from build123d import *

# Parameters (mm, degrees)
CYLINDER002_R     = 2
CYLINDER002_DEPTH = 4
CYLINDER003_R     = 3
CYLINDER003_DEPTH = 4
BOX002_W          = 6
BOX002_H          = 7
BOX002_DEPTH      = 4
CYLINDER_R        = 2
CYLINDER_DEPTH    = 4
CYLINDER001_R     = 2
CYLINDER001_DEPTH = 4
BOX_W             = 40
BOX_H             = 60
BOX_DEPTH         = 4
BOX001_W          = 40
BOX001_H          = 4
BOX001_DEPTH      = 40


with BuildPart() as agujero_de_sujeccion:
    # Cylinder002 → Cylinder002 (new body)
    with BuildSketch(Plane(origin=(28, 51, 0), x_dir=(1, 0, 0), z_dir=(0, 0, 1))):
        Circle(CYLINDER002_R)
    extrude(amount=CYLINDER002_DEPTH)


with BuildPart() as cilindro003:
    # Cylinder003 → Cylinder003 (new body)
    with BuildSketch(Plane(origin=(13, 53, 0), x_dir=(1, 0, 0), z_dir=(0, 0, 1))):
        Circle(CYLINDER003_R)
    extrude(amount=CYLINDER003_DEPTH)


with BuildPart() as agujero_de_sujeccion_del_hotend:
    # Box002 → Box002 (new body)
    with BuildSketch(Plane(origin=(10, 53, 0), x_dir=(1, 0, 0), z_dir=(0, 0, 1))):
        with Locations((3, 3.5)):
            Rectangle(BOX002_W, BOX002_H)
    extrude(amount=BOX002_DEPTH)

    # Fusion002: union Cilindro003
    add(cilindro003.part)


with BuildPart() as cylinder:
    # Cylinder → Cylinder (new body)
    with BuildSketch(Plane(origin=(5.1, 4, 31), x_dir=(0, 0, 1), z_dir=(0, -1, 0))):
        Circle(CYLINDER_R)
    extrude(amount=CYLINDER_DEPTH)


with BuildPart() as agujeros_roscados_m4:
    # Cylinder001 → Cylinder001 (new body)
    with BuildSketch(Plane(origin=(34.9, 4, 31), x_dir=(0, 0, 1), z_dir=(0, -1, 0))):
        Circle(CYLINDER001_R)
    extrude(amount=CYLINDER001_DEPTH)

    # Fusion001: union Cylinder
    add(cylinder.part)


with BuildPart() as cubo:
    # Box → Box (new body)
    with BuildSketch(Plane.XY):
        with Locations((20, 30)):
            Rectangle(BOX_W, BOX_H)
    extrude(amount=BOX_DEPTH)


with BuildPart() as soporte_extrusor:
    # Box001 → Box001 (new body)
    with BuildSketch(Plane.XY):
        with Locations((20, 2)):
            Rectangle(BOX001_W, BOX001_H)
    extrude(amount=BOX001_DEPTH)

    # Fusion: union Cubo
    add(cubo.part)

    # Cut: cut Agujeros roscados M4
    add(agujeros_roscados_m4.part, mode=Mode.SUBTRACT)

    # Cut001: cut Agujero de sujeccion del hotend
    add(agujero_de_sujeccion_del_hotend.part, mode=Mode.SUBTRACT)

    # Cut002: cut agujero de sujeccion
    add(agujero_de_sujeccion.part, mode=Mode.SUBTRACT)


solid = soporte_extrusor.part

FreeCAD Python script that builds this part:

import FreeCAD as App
import Part
import Sketcher

V = App.Vector
Q = App.Units.Quantity


def add_polygon(sketch, points):
    """Adds a closed chain of lines whose ends are joined by coincident constraints."""
    first, n = sketch.GeometryCount, len(points)
    for a, b in zip(points, points[1:] + points[:1]):
        sketch.addGeometry(Part.LineSegment(App.Vector(*a, 0), App.Vector(*b, 0)), False)
    for i in range(n):
        sketch.addConstraint(Sketcher.Constraint("Coincident", first + i, 2, first + (i + 1) % n, 1))

doc = App.newDocument("Part")
body = doc.addObject("PartDesign::Body", "Body")

sketch1 = body.newObject("Sketcher::SketchObject", "Sketch")
sketch1.AttachmentSupport = (doc.getObject("XY_Plane"), [""])
sketch1.MapMode = "FlatFace"
sketch1.addGeometry(Part.Circle(V(28, 51, 0), V(0, 0, 1), 2), False)
sketch1.addConstraint(Sketcher.Constraint("Diameter", 0, Q("4 mm")))
sketch1.addConstraint(Sketcher.Constraint("DistanceX", -1, 1, 0, 3, Q("28 mm")))
sketch1.addConstraint(Sketcher.Constraint("DistanceY", -1, 1, 0, 3, Q("51 mm")))
pad1 = body.newObject("PartDesign::Pad", "Pad")
pad1.Profile = sketch1
pad1.Length = 4
body2 = doc.addObject("PartDesign::Body", "Body001")

sketch2 = body2.newObject("Sketcher::SketchObject", "Sketch001")
sketch2.AttachmentSupport = (doc.getObject("XY_Plane001"), [""])
sketch2.MapMode = "FlatFace"
sketch2.addGeometry(Part.Circle(V(13, 53, 0), V(0, 0, 1), 3), False)
sketch2.addConstraint(Sketcher.Constraint("Diameter", 0, Q("6 mm")))
sketch2.addConstraint(Sketcher.Constraint("DistanceX", -1, 1, 0, 3, Q("13 mm")))
sketch2.addConstraint(Sketcher.Constraint("DistanceY", -1, 1, 0, 3, Q("53 mm")))
pad2 = body2.newObject("PartDesign::Pad", "Pad001")
pad2.Profile = sketch2
pad2.Length = 4
body3 = doc.addObject("PartDesign::Body", "Body002")

sketch3 = body3.newObject("Sketcher::SketchObject", "Sketch002")
sketch3.AttachmentSupport = (doc.getObject("XY_Plane002"), [""])
sketch3.MapMode = "FlatFace"
add_polygon(sketch3, [(10, 60), (10, 53), (16, 53), (16, 60)])
sketch3.addConstraint(Sketcher.Constraint("Vertical", 0))
sketch3.addConstraint(Sketcher.Constraint("Horizontal", 1))
sketch3.addConstraint(Sketcher.Constraint("Vertical", 2))
sketch3.addConstraint(Sketcher.Constraint("Horizontal", 3))
sketch3.addConstraint(Sketcher.Constraint("DistanceX", 1, 1, 1, 2, Q("6 mm")))
sketch3.addConstraint(Sketcher.Constraint("DistanceY", 0, 2, 0, 1, Q("7 mm")))
sketch3.addConstraint(Sketcher.Constraint("DistanceX", -1, 1, 0, 2, Q("10 mm")))
sketch3.addConstraint(Sketcher.Constraint("DistanceY", -1, 1, 0, 2, Q("53 mm")))
pad3 = body3.newObject("PartDesign::Pad", "Pad002")
pad3.Profile = sketch3
pad3.Length = 4
doc.recompute()

boolean = body3.newObject("PartDesign::Boolean", "Boolean")
boolean.Type = "Fuse"
boolean.addObjects([body2])
body4 = doc.addObject("PartDesign::Body", "Body003")

sketch4 = body4.newObject("Sketcher::SketchObject", "Sketch003")
sketch4.AttachmentSupport = (doc.getObject("XZ_Plane003"), [""])
sketch4.MapMode = "FlatFace"
sketch4.AttachmentOffset = App.Placement(V(0, 0, -4), App.Rotation())
sketch4.addGeometry(Part.Circle(V(5.1, 31, 0), V(0, 0, 1), 2), False)
sketch4.addConstraint(Sketcher.Constraint("Diameter", 0, Q("4 mm")))
sketch4.addConstraint(Sketcher.Constraint("DistanceY", -1, 1, 0, 3, Q("31 mm")))
sketch4.addConstraint(Sketcher.Constraint("DistanceX", -1, 1, 0, 3, Q("5.1 mm")))
pad4 = body4.newObject("PartDesign::Pad", "Pad003")
pad4.Profile = sketch4
pad4.Length = 4
body5 = doc.addObject("PartDesign::Body", "Body004")
body5.AllowCompound = True

sketch5 = body5.newObject("Sketcher::SketchObject", "Sketch004")
sketch5.AttachmentSupport = (doc.getObject("XZ_Plane004"), [""])
sketch5.MapMode = "FlatFace"
sketch5.AttachmentOffset = App.Placement(V(0, 0, -4), App.Rotation())
sketch5.addGeometry(Part.Circle(V(34.9, 31, 0), V(0, 0, 1), 2), False)
sketch5.addConstraint(Sketcher.Constraint("Diameter", 0, Q("4 mm")))
sketch5.addConstraint(Sketcher.Constraint("DistanceY", -1, 1, 0, 3, Q("31 mm")))
sketch5.addConstraint(Sketcher.Constraint("DistanceX", -1, 1, 0, 3, Q("34.9 mm")))
pad5 = body5.newObject("PartDesign::Pad", "Pad004")
pad5.Profile = sketch5
pad5.Length = 4
doc.recompute()

boolean2 = body5.newObject("PartDesign::Boolean", "Boolean001")
boolean2.Type = "Fuse"
boolean2.addObjects([body4])
body6 = doc.addObject("PartDesign::Body", "Body005")

sketch6 = body6.newObject("Sketcher::SketchObject", "Sketch005")
sketch6.AttachmentSupport = (doc.getObject("XY_Plane005"), [""])
sketch6.MapMode = "FlatFace"
add_polygon(sketch6, [(0, 60), (0, 0), (40, 0), (40, 60)])
sketch6.addConstraint(Sketcher.Constraint("Vertical", 0))
sketch6.addConstraint(Sketcher.Constraint("Horizontal", 1))
sketch6.addConstraint(Sketcher.Constraint("Vertical", 2))
sketch6.addConstraint(Sketcher.Constraint("Horizontal", 3))
sketch6.addConstraint(Sketcher.Constraint("Coincident", 0, 2, -1, 1))
sketch6.addConstraint(Sketcher.Constraint("DistanceX", 1, 1, 1, 2, Q("40 mm")))
sketch6.addConstraint(Sketcher.Constraint("DistanceY", 0, 2, 0, 1, Q("60 mm")))
pad6 = body6.newObject("PartDesign::Pad", "Pad005")
pad6.Profile = sketch6
pad6.Length = 4
body7 = doc.addObject("PartDesign::Body", "Body006")

sketch7 = body7.newObject("Sketcher::SketchObject", "Sketch006")
sketch7.AttachmentSupport = (doc.getObject("XY_Plane006"), [""])
sketch7.MapMode = "FlatFace"
add_polygon(sketch7, [(0, 4), (0, 0), (40, 0), (40, 4)])
sketch7.addConstraint(Sketcher.Constraint("Vertical", 0))
sketch7.addConstraint(Sketcher.Constraint("Horizontal", 1))
sketch7.addConstraint(Sketcher.Constraint("Vertical", 2))
sketch7.addConstraint(Sketcher.Constraint("Horizontal", 3))
sketch7.addConstraint(Sketcher.Constraint("Coincident", 0, 2, -1, 1))
sketch7.addConstraint(Sketcher.Constraint("DistanceX", 1, 1, 1, 2, Q("40 mm")))
sketch7.addConstraint(Sketcher.Constraint("DistanceY", 0, 2, 0, 1, Q("4 mm")))
pad7 = body7.newObject("PartDesign::Pad", "Pad006")
pad7.Profile = sketch7
pad7.Length = 40
doc.recompute()

boolean3 = body7.newObject("PartDesign::Boolean", "Boolean002")
boolean3.Type = "Fuse"
boolean3.addObjects([body6])
doc.recompute()

boolean4 = body7.newObject("PartDesign::Boolean", "Boolean003")
boolean4.Type = "Cut"
boolean4.addObjects([body5])
doc.recompute()

boolean5 = body7.newObject("PartDesign::Boolean", "Boolean004")
boolean5.Type = "Cut"
boolean5.addObjects([body3])
doc.recompute()

boolean6 = body7.newObject("PartDesign::Boolean", "Boolean005")
boolean6.Type = "Cut"
boolean6.addObjects([body])

doc.recompute()
